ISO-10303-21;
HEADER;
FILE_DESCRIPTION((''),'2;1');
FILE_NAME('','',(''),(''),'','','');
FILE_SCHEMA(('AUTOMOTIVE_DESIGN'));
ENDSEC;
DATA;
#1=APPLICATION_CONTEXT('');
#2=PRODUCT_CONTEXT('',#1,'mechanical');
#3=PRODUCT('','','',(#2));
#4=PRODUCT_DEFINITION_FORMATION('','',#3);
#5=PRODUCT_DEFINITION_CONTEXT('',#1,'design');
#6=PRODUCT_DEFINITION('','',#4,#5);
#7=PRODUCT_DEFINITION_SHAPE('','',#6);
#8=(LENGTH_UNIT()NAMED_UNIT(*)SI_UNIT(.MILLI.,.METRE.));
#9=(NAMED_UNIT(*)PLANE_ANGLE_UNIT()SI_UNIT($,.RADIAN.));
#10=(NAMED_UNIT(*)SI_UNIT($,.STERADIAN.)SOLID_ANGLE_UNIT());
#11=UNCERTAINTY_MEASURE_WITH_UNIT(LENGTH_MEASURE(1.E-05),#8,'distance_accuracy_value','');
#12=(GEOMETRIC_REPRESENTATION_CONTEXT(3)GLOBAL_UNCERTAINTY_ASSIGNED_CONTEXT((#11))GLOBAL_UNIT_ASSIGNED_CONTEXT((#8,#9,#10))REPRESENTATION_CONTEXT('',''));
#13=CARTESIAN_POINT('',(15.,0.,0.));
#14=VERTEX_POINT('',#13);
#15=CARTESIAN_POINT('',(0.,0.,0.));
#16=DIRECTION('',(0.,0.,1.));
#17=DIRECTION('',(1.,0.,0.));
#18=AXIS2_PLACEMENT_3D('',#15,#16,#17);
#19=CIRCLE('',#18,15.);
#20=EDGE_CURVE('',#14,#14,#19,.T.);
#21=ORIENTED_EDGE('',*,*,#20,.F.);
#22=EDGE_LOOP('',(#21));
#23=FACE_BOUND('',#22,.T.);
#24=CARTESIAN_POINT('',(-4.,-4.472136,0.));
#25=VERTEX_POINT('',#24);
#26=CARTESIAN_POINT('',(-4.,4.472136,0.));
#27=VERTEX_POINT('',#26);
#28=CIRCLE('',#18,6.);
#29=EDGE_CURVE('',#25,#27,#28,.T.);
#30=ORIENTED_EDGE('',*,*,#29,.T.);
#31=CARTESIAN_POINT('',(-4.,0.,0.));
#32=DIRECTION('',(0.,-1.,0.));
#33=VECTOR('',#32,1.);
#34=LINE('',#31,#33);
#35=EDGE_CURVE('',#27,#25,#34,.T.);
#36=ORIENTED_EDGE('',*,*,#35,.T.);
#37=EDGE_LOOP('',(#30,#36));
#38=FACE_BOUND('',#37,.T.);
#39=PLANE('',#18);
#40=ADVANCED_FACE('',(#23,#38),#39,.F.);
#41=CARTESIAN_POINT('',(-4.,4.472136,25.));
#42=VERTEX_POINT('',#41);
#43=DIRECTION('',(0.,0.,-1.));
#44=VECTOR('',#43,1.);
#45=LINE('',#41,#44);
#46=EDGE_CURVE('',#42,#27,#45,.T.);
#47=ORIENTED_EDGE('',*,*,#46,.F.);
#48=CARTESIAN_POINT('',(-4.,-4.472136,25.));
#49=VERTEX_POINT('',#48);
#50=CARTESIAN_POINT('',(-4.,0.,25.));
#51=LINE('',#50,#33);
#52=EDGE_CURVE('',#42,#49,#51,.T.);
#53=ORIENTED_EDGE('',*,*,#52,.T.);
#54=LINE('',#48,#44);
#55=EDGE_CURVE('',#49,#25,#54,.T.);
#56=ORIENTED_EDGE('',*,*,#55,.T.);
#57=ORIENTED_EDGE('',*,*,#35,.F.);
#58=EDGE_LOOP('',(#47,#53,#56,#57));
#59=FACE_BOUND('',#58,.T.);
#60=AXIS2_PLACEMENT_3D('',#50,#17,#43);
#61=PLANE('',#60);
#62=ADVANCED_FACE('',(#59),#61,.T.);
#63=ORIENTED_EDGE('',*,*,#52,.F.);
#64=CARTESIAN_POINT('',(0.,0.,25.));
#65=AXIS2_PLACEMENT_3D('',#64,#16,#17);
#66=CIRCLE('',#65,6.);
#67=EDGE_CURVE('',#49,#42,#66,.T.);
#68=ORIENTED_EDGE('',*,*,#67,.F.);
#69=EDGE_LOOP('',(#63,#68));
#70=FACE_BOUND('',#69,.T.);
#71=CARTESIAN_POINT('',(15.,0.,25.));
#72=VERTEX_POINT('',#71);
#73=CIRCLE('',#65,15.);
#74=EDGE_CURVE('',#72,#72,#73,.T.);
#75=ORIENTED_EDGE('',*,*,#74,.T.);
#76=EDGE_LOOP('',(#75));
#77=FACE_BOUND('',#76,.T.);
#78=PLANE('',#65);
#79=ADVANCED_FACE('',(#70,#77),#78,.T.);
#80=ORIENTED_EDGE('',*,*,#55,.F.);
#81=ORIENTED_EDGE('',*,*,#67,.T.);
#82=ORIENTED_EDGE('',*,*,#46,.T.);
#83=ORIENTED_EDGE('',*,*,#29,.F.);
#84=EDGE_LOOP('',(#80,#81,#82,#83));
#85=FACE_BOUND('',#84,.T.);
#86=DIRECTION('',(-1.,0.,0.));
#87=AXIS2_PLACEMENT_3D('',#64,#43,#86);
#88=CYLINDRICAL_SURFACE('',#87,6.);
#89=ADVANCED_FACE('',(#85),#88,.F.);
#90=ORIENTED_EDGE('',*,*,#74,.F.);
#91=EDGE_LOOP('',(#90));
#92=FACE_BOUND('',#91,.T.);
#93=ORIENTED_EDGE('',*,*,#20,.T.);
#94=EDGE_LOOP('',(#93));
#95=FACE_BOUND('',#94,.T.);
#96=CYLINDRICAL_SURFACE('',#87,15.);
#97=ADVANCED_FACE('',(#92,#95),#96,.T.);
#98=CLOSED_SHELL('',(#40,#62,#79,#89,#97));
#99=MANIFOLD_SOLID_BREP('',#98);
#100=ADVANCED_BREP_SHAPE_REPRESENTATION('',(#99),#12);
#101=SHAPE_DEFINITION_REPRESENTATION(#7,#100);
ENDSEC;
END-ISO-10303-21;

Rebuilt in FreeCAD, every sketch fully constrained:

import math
import FreeCAD as App
import Part
import Sketcher

doc = App.newDocument("Part")
body = doc.addObject("PartDesign::Body", "Body")

# Sketch on XY plane
sketch1 = body.newObject("Sketcher::SketchObject", "Sketch")
sketch1.AttachmentSupport = (doc.getObject("XY_Plane"), [""])
sketch1.MapMode = "FlatFace"
sketch1.addGeometry([
    Part.ArcOfCircle(Part.Circle(App.Vector(0, 0, 0), App.Vector(0, 0, 1), 15), math.radians(90), math.radians(105.46601)),  # 0
    Part.ArcOfCircle(Part.Circle(App.Vector(0, 0, 0), App.Vector(0, 0, 1), 15), math.radians(105.46601), math.radians(254.53399)),  # 1
    Part.ArcOfCircle(Part.Circle(App.Vector(0, 0, 0), App.Vector(0, 0, 1), 15), math.radians(-105.46601), math.radians(0)),  # 2
    Part.ArcOfCircle(Part.Circle(App.Vector(0, 0, 0), App.Vector(0, 0, 1), 15), math.radians(0), math.radians(90)),  # 3
    Part.ArcOfCircle(Part.Circle(App.Vector(0, 0, 0), App.Vector(0, 0, 1), 6), math.radians(90), math.radians(131.810315)),  # 4
    Part.ArcOfCircle(Part.Circle(App.Vector(0, 0, 0), App.Vector(0, 0, 1), 6), math.radians(0), math.radians(90)),  # 5
    Part.ArcOfCircle(Part.Circle(App.Vector(0, 0, 0), App.Vector(0, 0, 1), 6), math.radians(-131.810315), math.radians(0)),  # 6
    Part.LineSegment(App.Vector(-4, -4.472136, 0), App.Vector(-4, 4.472136, 0)),  # 7
], False)
sketch1.addConstraint([
    Sketcher.Constraint("Tangent", 0, 2, 1, 1),
    Sketcher.Constraint("Tangent", 1, 2, 2, 1),
    Sketcher.Constraint("Tangent", 2, 2, 3, 1),
    Sketcher.Constraint("Tangent", 3, 2, 0, 1),
    Sketcher.Constraint("Tangent", 4, 1, 5, 2),
    Sketcher.Constraint("Tangent", 5, 1, 6, 2),
    Sketcher.Constraint("Coincident", 6, 1, 7, 1),
    Sketcher.Constraint("Coincident", 7, 2, 4, 2),
    Sketcher.Constraint("Vertical", 7),
    Sketcher.Constraint("Coincident", 0, 3, -1, 1),
    Sketcher.Constraint("Coincident", 4, 3, -1, 1),
    Sketcher.Constraint("Coincident", 6, 3, -1, 1),
    Sketcher.Constraint("Equal", 0, 1),
    Sketcher.Constraint("PointOnObject", 2, 2, -1),
    Sketcher.Constraint("PointOnObject", 3, 2, -2),
    Sketcher.Constraint("PointOnObject", 4, 1, -2),
    Sketcher.Constraint("PointOnObject", 5, 1, -1),
    Sketcher.Constraint("Vertical", 0, 2, 1, 2),
    Sketcher.Constraint("Vertical", 1, 2, 6, 1),
    Sketcher.Constraint("Radius", 0, 15.0),
    Sketcher.Constraint("Radius", 4, 6.0),
    Sketcher.Constraint("DistanceX", 0, 2, -1, 1, 4.0),
])
pad1 = body.newObject("PartDesign::Pad", "Pad")
pad1.Profile = sketch1
pad1.Length = 25

doc.recompute()
